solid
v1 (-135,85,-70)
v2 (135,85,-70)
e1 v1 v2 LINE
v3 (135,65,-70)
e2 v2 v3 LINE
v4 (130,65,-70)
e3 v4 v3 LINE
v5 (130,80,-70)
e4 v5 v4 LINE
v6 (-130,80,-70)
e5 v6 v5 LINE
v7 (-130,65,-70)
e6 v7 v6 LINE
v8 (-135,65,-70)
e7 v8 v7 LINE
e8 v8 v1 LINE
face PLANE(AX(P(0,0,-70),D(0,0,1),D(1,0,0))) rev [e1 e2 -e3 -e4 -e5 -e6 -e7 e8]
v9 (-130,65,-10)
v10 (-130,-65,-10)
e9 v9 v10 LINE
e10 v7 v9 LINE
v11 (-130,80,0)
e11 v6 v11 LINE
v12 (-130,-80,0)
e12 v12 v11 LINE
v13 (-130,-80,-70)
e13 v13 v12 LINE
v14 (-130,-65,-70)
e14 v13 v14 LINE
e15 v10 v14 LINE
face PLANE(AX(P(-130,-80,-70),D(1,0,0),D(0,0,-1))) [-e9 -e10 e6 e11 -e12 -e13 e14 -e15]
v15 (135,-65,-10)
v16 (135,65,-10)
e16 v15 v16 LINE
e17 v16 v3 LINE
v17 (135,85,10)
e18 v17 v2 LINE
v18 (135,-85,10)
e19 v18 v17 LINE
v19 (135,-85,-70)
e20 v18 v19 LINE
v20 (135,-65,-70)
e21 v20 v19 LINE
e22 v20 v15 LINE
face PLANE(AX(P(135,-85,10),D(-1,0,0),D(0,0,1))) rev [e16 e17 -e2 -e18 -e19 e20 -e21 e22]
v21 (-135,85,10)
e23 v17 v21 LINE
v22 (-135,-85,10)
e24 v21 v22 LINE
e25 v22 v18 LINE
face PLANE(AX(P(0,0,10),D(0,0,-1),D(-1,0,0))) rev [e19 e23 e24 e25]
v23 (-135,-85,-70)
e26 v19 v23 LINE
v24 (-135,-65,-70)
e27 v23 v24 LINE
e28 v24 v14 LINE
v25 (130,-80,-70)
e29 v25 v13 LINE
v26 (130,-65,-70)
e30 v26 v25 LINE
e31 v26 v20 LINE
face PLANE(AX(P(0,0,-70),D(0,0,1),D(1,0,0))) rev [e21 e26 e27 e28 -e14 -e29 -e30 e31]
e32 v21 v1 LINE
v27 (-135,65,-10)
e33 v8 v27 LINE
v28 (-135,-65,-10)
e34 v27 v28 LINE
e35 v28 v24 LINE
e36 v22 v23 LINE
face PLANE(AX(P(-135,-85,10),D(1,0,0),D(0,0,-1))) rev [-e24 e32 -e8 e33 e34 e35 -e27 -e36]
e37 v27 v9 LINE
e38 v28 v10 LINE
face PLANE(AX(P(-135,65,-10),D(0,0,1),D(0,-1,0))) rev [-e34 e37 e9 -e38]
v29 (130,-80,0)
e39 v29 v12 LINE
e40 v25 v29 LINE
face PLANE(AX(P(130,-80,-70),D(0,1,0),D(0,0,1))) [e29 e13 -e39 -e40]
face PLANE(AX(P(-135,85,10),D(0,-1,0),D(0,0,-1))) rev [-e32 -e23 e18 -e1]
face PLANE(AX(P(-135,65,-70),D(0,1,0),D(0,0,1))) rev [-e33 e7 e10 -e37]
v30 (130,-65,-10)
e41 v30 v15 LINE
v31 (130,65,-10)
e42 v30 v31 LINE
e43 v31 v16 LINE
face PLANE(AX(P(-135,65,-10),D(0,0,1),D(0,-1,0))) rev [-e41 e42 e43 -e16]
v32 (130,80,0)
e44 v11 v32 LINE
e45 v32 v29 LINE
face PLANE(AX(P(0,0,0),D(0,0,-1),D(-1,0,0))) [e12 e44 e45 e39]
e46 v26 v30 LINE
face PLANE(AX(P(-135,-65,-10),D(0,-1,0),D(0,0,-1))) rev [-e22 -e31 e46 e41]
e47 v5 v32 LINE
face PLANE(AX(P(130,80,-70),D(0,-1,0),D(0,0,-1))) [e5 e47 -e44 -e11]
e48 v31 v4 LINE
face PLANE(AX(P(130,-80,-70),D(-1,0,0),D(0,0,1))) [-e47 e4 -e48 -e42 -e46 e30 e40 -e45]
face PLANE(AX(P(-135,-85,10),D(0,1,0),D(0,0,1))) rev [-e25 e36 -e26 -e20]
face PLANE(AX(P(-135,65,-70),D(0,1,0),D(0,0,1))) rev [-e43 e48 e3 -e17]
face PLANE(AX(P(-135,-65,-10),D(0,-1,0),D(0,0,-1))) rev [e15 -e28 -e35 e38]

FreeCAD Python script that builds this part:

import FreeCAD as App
import Part
import Sketcher

V = App.Vector


def add_polygon(sketch, points):
    """Adds a closed chain of lines whose ends are joined by coincident constraints."""
    first, n = sketch.GeometryCount, len(points)
    for a, b in zip(points, points[1:] + points[:1]):
        sketch.addGeometry(Part.LineSegment(App.Vector(*a, 0), App.Vector(*b, 0)), False)
    for i in range(n):
        sketch.addConstraint(Sketcher.Constraint("Coincident", first + i, 2, first + (i + 1) % n, 1))

doc = App.newDocument("Part")
body = doc.addObject("PartDesign::Body", "Body")

# Sketch on XY plane
sketch1 = doc.addObject("Sketcher::SketchObject", "Sketch")
body.addObject(sketch1)
sketch1.AttachmentSupport = (doc.XY_Plane, [""])
sketch1.MapMode = "FlatFace"
add_polygon(sketch1, [(-135, 85), (-135, -85), (135, -85), (135, 85)])  # lines 0-3
sketch1.addConstraint([
    Sketcher.Constraint("Vertical", 0),
    Sketcher.Constraint("Horizontal", 1),
    Sketcher.Constraint("Vertical", 2),
    Sketcher.Constraint("Horizontal", 3),
    Sketcher.Constraint("Symmetric", 0, 2, 2, 2, -1, 1),
    Sketcher.Constraint("DistanceX", 1, 1, 1, 2, 270.0),
    Sketcher.Constraint("DistanceY", 0, 2, 0, 1, 170.0),
])
pad1 = doc.addObject("PartDesign::Pad", "Pad")
body.addObject(pad1)
pad1.Profile = sketch1
pad1.Length = 10

# Sketch on XY plane
sketch2 = doc.addObject("Sketcher::SketchObject", "Sketch001")
body.addObject(sketch2)
sketch2.AttachmentSupport = (doc.XY_Plane, [""])
sketch2.MapMode = "FlatFace"
add_polygon(sketch2, [(135, 85), (135, -85), (-135, -85), (-135, 85)])  # lines 0-3
add_polygon(sketch2, [(-130, -80), (130, -80), (130, 80), (-130, 80)])  # lines 4-7
sketch2.addConstraint([
    Sketcher.Constraint("Vertical", 0),
    Sketcher.Constraint("Horizontal", 1),
    Sketcher.Constraint("Vertical", 2),
    Sketcher.Constraint("Horizontal", 3),
    Sketcher.Constraint("Horizontal", 4),
    Sketcher.Constraint("Vertical", 5),
    Sketcher.Constraint("Horizontal", 6),
    Sketcher.Constraint("Vertical", 7),
    Sketcher.Constraint("Symmetric", 0, 2, 2, 2, -1, 1),
    Sketcher.Constraint("Symmetric", 4, 2, 6, 2, -1, 1),
    Sketcher.Constraint("DistanceX", 1, 2, 1, 1, 270.0),
    Sketcher.Constraint("DistanceX", 4, 1, 4, 2, 260.0),
    Sketcher.Constraint("DistanceY", 0, 2, 0, 1, 170.0),
    Sketcher.Constraint("DistanceY", 5, 1, 5, 2, 160.0),
])
pad2 = doc.addObject("PartDesign::Pad", "Pad001")
body.addObject(pad2)
pad2.Profile = sketch2
pad2.Length = 70
pad2.Reversed = True

# Sketch on YZ plane
sketch3 = doc.addObject("Sketcher::SketchObject", "Sketch002")
body.addObject(sketch3)
sketch3.AttachmentSupport = (doc.YZ_Plane, [""])
sketch3.MapMode = "FlatFace"
sketch3.AttachmentOffset = App.Placement(V(0, 0, 135), App.Rotation())
add_polygon(sketch3, [(65, -10), (-65, -10), (-65, -70), (65, -70)])  # lines 0-3
sketch3.addConstraint([
    Sketcher.Constraint("Horizontal", 0),
    Sketcher.Constraint("Vertical", 1),
    Sketcher.Constraint("Horizontal", 2),
    Sketcher.Constraint("Vertical", 3),
    Sketcher.Constraint("DistanceX", 0, 2, 0, 1, 130.0),
    Sketcher.Constraint("DistanceY", 1, 2, 1, 1, 60.0),
    Sketcher.Constraint("DistanceX", 0, 2, -1, 1, 65.0),
    Sketcher.Constraint("DistanceY", 0, 2, -1, 1, 10.0),
])
pocket1 = doc.addObject("PartDesign::Pocket", "Pocket")
body.addObject(pocket1)
pocket1.Profile = sketch3
pocket1.Type = "ThroughAll"
pocket1.Midplane = True

doc.recompute()
